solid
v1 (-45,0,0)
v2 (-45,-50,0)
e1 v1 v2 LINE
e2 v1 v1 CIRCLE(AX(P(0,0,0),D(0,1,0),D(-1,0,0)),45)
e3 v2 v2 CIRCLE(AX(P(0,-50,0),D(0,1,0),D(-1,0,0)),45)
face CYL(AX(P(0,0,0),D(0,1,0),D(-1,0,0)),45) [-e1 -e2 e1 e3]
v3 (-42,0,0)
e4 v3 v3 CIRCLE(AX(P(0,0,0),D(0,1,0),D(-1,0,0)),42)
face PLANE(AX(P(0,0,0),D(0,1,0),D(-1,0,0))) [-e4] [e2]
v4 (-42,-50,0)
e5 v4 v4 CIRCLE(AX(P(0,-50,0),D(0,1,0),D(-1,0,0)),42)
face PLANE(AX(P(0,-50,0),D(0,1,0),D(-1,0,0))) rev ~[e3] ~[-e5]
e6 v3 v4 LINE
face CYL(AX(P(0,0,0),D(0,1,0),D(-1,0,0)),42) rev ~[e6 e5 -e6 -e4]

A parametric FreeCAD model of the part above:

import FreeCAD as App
import Part
import Sketcher

doc = App.newDocument("Part")
body = doc.addObject("PartDesign::Body", "Body")

# Sketch on XZ plane
sketch1 = body.newObject("Sketcher::SketchObject", "Sketch")
sketch1.AttachmentSupport = (doc.getObject("XZ_Plane"), [""])
sketch1.MapMode = "FlatFace"
sketch1.addGeometry([
    Part.Circle(App.Vector(0, 0, 0), App.Vector(0, 0, 1), 45),
    Part.Circle(App.Vector(0, 0, 0), App.Vector(0, 0, 1), 42),
], False)
sketch1.addConstraint([
    Sketcher.Constraint("Coincident", 0, 3, -1, 1),
    Sketcher.Constraint("Coincident", 1, 3, -1, 1),
    Sketcher.Constraint("Diameter", 0, 90.0),
    Sketcher.Constraint("Diameter", 1, 84.0),
])
pad1 = body.newObject("PartDesign::Pad", "Pad")
pad1.Profile = sketch1
pad1.Length = 50

doc.recompute()
